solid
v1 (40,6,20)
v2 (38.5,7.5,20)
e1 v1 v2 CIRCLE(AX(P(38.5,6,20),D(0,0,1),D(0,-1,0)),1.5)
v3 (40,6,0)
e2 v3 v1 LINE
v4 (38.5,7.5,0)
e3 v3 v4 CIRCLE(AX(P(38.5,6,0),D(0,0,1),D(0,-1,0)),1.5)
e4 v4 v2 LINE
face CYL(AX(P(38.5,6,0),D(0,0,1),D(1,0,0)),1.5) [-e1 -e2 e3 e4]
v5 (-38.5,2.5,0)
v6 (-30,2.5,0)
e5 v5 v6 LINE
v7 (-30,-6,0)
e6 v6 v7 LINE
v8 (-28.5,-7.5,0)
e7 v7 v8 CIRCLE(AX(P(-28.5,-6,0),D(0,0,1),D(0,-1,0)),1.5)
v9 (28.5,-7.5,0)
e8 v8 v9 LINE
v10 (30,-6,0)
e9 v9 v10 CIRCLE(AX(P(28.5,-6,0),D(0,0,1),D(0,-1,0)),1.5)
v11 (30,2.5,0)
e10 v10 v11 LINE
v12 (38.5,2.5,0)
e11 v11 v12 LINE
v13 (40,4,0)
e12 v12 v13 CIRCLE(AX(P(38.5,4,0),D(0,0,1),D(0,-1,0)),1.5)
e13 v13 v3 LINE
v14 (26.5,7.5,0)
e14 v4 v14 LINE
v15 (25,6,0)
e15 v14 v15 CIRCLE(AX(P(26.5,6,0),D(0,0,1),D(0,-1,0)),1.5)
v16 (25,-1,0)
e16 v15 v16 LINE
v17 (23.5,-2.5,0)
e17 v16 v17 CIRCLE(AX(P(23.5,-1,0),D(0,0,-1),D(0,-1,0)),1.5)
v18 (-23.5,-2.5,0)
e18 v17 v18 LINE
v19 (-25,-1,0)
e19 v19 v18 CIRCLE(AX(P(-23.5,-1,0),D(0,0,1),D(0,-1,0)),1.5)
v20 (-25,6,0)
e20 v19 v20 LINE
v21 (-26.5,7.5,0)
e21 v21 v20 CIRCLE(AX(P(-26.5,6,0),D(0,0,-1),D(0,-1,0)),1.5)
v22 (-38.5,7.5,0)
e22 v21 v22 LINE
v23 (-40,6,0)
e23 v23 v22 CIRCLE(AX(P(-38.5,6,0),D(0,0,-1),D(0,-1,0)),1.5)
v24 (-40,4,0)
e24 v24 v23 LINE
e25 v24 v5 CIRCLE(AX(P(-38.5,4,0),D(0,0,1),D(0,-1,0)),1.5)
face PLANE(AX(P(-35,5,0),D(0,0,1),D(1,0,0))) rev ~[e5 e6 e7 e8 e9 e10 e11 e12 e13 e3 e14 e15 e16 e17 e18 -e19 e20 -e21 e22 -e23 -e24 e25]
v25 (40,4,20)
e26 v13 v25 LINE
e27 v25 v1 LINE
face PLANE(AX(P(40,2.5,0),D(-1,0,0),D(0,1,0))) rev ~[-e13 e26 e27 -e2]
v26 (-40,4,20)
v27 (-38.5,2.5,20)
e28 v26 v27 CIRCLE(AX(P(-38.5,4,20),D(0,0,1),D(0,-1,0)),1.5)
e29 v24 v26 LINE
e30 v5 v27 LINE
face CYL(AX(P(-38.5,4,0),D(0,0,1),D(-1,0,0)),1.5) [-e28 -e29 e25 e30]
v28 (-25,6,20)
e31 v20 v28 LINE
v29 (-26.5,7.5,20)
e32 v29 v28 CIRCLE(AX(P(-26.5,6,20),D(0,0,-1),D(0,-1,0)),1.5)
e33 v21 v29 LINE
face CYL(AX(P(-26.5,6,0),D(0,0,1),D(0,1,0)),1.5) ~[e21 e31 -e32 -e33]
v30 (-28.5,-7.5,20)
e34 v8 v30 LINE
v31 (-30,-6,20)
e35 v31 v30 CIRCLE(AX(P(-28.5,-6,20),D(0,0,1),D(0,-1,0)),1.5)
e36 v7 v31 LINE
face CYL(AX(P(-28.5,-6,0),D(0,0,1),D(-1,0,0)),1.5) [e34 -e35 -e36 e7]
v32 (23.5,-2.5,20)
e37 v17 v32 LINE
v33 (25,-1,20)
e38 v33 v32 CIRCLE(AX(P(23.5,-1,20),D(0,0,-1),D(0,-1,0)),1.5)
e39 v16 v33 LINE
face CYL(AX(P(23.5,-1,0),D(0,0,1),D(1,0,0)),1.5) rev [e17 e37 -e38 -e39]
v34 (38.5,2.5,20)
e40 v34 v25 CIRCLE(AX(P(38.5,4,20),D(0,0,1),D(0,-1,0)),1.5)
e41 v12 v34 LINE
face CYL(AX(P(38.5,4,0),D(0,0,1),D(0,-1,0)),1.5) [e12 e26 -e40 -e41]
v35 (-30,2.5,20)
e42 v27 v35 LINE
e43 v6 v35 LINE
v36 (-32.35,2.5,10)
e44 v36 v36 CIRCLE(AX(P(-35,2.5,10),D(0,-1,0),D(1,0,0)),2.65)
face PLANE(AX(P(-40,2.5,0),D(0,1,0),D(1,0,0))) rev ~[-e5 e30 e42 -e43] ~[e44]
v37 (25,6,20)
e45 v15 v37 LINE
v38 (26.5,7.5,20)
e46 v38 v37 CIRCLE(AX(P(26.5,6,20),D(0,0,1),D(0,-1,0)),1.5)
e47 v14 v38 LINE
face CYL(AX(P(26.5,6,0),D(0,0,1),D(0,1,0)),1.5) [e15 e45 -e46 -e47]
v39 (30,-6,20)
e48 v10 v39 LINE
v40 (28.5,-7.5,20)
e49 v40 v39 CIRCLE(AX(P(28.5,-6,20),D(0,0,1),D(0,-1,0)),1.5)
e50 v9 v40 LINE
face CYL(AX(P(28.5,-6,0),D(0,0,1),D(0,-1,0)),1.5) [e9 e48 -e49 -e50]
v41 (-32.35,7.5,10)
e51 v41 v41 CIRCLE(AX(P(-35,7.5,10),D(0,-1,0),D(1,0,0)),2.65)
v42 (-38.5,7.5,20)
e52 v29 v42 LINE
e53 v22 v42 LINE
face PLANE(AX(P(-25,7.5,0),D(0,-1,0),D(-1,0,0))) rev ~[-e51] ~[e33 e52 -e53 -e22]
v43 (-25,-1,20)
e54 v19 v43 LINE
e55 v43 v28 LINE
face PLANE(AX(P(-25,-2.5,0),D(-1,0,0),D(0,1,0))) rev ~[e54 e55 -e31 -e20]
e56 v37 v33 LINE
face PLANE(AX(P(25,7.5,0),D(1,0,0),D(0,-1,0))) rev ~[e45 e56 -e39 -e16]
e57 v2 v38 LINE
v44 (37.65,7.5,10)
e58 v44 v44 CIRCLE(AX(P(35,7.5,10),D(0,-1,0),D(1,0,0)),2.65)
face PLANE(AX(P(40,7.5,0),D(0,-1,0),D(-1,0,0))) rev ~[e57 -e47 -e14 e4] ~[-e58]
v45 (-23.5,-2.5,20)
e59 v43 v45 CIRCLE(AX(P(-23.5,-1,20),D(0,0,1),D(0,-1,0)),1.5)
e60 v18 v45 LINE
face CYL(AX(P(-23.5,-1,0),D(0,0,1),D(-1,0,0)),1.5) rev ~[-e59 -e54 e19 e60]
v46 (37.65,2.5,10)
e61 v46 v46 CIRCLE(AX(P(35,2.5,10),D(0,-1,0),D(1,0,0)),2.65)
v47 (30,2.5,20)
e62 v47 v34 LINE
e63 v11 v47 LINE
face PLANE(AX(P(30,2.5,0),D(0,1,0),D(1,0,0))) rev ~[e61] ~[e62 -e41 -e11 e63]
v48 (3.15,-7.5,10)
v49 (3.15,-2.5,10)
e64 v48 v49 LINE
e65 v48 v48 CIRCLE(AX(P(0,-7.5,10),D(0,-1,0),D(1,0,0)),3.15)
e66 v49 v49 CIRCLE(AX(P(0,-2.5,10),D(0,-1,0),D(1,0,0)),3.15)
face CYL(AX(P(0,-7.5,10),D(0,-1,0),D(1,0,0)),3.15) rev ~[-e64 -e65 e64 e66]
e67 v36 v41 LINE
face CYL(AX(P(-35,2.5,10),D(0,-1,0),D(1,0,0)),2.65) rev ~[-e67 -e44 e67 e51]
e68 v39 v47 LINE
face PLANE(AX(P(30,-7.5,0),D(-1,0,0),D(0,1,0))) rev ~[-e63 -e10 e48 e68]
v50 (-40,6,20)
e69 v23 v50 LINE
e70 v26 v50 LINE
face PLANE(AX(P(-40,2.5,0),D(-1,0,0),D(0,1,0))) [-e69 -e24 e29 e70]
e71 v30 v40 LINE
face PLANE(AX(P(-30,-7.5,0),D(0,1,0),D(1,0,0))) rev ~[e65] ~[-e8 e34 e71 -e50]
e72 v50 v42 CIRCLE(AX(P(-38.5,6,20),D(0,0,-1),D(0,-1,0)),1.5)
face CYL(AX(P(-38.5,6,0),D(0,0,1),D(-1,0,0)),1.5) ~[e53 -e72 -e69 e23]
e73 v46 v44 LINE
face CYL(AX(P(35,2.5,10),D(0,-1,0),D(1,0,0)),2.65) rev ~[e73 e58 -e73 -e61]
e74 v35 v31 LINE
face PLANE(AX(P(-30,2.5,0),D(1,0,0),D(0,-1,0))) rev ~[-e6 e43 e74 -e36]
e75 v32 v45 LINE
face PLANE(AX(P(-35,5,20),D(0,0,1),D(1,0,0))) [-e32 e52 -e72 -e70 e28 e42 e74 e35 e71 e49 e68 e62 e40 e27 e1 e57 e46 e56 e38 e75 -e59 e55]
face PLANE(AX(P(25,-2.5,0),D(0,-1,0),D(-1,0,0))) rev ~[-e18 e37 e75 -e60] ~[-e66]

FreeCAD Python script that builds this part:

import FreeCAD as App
import Part
import Sketcher


def edges_at(feature, points):
    """Names of the edges that pass closest to the given points."""
    edges = feature.Shape.Edges
    near = lambda p: min(range(len(edges)), key=lambda i: edges[i].distToShape(Part.Vertex(*p))[0])
    return sorted({f"Edge{near(p) + 1}" for p in points})


def add_polygon(sketch, points):
    """Adds a closed chain of lines whose ends are joined by coincident constraints."""
    first, n = sketch.GeometryCount, len(points)
    for a, b in zip(points, points[1:] + points[:1]):
        sketch.addGeometry(Part.LineSegment(App.Vector(*a, 0), App.Vector(*b, 0)), False)
    for i in range(n):
        sketch.addConstraint(Sketcher.Constraint("Coincident", first + i, 2, first + (i + 1) % n, 1))

doc = App.newDocument("Part")
body = doc.addObject("PartDesign::Body", "Body")

sketch1 = body.newObject("Sketcher::SketchObject", "Sketch")
sketch1.AttachmentSupport = (doc.getObject("XY_Plane"), [""])
sketch1.MapMode = "FlatFace"
add_polygon(sketch1, [(-40, 8), (-40, 2), (-30, 2), (-30, -8), (30, -8), (30, 2), (40, 2), (40, 8), (25, 8), (25, -2), (-25, -2), (-25, 8)])
sketch1.addConstraint(Sketcher.Constraint("Vertical", 0))
sketch1.addConstraint(Sketcher.Constraint("Horizontal", 1))
sketch1.addConstraint(Sketcher.Constraint("Vertical", 2))
sketch1.addConstraint(Sketcher.Constraint("Horizontal", 3))
sketch1.addConstraint(Sketcher.Constraint("Vertical", 4))
sketch1.addConstraint(Sketcher.Constraint("Horizontal", 5))
sketch1.addConstraint(Sketcher.Constraint("Vertical", 6))
sketch1.addConstraint(Sketcher.Constraint("Horizontal", 7))
sketch1.addConstraint(Sketcher.Constraint("Vertical", 8))
sketch1.addConstraint(Sketcher.Constraint("Horizontal", 9))
sketch1.addConstraint(Sketcher.Constraint("Vertical", 10))
sketch1.addConstraint(Sketcher.Constraint("Horizontal", 11))
sketch1.addConstraint(Sketcher.Constraint("Symmetric", 1, 2, 4, 2, -2))
sketch1.addConstraint(Sketcher.Constraint("Symmetric", 7, 2, 10, 2, -2))
sketch1.addConstraint(Sketcher.Constraint("Equal", 1, 5))
sketch1.addConstraint(Sketcher.Constraint("Equal", 5, 2))
sketch1.addConstraint(Sketcher.Constraint("Equal", 4, 8))
sketch1.addConstraint(Sketcher.Constraint("DistanceX", 1, 1, 1, 2, 10.0))
sketch1.addConstraint(Sketcher.Constraint("DistanceX", 3, 1, 3, 2, 60.0))
sketch1.addConstraint(Sketcher.Constraint("DistanceX", 7, 2, 7, 1, 15.0))
sketch1.addConstraint(Sketcher.Constraint("DistanceY", 0, 2, 0, 1, 5.0))
sketch1.addConstraint(Sketcher.Constraint("DistanceY", -1, 1, 0, 2, 2.5))
pad1 = body.newObject("PartDesign::Pad", "Pad")
pad1.Profile = sketch1
pad1.Length = 20

sketch2 = body.newObject("Sketcher::SketchObject", "Sketch001")
sketch2.AttachmentSupport = (doc.getObject("XZ_Plane"), [""])
sketch2.MapMode = "FlatFace"
sketch2.AttachmentOffset = App.Placement(App.Vector(0, 0, 7.5), App.Rotation())
sketch2.addGeometry(Part.Circle(App.Vector(0, 10, 0), App.Vector(0, 0, 1), 3.1), False)
sketch2.addConstraint(Sketcher.Constraint("PointOnObject", 0, 3, -2))
sketch2.addConstraint(Sketcher.Constraint("Diameter", 0, 6.3))
sketch2.addConstraint(Sketcher.Constraint("DistanceY", -1, 1, 0, 3, 10.0))
pocket1 = body.newObject("PartDesign::Pocket", "Pocket")
pocket1.Profile = sketch2
pocket1.Length = 25

sketch3 = body.newObject("Sketcher::SketchObject", "Sketch002")
sketch3.AttachmentSupport = (doc.getObject("XZ_Plane"), [""])
sketch3.MapMode = "FlatFace"
sketch3.AttachmentOffset = App.Placement(App.Vector(0, 0, -2.5), App.Rotation())
sketch3.addGeometry(Part.Circle(App.Vector(-35, 10, 0), App.Vector(0, 0, 1), 2.6), False)
sketch3.addGeometry(Part.Circle(App.Vector(35, 10, 0), App.Vector(0, 0, 1), 2.6), False)
sketch3.addConstraint(Sketcher.Constraint("Equal", 0, 1))
sketch3.addConstraint(Sketcher.Constraint("Symmetric", 0, 3, 1, 3, -2))
sketch3.addConstraint(Sketcher.Constraint("Diameter", 0, 5.3))
sketch3.addConstraint(Sketcher.Constraint("DistanceX", 0, 3, -1, 1, 35.0))
sketch3.addConstraint(Sketcher.Constraint("DistanceY", -1, 1, 0, 3, 10.0))
pocket2 = body.newObject("PartDesign::Pocket", "Pocket001")
pocket2.Profile = sketch3
pocket2.Length = 25
doc.recompute()

fillet = body.newObject("PartDesign::Fillet", "Fillet")
fillet.Base = (pocket2, edges_at(pocket2, [
    (-25, -2.5, 10),
    (25, -2.5, 10),
    (40, 7.5, 10),
    (40, 2.5, 10),
    (30, -7.5, 10),
    (-30, -7.5, 10),
    (-40, 2.5, 10),
    (-40, 7.5, 10),
    (-25, 7.5, 10),
    (25, 7.5, 10),
]))
fillet.Radius = 1.5

doc.recompute()
